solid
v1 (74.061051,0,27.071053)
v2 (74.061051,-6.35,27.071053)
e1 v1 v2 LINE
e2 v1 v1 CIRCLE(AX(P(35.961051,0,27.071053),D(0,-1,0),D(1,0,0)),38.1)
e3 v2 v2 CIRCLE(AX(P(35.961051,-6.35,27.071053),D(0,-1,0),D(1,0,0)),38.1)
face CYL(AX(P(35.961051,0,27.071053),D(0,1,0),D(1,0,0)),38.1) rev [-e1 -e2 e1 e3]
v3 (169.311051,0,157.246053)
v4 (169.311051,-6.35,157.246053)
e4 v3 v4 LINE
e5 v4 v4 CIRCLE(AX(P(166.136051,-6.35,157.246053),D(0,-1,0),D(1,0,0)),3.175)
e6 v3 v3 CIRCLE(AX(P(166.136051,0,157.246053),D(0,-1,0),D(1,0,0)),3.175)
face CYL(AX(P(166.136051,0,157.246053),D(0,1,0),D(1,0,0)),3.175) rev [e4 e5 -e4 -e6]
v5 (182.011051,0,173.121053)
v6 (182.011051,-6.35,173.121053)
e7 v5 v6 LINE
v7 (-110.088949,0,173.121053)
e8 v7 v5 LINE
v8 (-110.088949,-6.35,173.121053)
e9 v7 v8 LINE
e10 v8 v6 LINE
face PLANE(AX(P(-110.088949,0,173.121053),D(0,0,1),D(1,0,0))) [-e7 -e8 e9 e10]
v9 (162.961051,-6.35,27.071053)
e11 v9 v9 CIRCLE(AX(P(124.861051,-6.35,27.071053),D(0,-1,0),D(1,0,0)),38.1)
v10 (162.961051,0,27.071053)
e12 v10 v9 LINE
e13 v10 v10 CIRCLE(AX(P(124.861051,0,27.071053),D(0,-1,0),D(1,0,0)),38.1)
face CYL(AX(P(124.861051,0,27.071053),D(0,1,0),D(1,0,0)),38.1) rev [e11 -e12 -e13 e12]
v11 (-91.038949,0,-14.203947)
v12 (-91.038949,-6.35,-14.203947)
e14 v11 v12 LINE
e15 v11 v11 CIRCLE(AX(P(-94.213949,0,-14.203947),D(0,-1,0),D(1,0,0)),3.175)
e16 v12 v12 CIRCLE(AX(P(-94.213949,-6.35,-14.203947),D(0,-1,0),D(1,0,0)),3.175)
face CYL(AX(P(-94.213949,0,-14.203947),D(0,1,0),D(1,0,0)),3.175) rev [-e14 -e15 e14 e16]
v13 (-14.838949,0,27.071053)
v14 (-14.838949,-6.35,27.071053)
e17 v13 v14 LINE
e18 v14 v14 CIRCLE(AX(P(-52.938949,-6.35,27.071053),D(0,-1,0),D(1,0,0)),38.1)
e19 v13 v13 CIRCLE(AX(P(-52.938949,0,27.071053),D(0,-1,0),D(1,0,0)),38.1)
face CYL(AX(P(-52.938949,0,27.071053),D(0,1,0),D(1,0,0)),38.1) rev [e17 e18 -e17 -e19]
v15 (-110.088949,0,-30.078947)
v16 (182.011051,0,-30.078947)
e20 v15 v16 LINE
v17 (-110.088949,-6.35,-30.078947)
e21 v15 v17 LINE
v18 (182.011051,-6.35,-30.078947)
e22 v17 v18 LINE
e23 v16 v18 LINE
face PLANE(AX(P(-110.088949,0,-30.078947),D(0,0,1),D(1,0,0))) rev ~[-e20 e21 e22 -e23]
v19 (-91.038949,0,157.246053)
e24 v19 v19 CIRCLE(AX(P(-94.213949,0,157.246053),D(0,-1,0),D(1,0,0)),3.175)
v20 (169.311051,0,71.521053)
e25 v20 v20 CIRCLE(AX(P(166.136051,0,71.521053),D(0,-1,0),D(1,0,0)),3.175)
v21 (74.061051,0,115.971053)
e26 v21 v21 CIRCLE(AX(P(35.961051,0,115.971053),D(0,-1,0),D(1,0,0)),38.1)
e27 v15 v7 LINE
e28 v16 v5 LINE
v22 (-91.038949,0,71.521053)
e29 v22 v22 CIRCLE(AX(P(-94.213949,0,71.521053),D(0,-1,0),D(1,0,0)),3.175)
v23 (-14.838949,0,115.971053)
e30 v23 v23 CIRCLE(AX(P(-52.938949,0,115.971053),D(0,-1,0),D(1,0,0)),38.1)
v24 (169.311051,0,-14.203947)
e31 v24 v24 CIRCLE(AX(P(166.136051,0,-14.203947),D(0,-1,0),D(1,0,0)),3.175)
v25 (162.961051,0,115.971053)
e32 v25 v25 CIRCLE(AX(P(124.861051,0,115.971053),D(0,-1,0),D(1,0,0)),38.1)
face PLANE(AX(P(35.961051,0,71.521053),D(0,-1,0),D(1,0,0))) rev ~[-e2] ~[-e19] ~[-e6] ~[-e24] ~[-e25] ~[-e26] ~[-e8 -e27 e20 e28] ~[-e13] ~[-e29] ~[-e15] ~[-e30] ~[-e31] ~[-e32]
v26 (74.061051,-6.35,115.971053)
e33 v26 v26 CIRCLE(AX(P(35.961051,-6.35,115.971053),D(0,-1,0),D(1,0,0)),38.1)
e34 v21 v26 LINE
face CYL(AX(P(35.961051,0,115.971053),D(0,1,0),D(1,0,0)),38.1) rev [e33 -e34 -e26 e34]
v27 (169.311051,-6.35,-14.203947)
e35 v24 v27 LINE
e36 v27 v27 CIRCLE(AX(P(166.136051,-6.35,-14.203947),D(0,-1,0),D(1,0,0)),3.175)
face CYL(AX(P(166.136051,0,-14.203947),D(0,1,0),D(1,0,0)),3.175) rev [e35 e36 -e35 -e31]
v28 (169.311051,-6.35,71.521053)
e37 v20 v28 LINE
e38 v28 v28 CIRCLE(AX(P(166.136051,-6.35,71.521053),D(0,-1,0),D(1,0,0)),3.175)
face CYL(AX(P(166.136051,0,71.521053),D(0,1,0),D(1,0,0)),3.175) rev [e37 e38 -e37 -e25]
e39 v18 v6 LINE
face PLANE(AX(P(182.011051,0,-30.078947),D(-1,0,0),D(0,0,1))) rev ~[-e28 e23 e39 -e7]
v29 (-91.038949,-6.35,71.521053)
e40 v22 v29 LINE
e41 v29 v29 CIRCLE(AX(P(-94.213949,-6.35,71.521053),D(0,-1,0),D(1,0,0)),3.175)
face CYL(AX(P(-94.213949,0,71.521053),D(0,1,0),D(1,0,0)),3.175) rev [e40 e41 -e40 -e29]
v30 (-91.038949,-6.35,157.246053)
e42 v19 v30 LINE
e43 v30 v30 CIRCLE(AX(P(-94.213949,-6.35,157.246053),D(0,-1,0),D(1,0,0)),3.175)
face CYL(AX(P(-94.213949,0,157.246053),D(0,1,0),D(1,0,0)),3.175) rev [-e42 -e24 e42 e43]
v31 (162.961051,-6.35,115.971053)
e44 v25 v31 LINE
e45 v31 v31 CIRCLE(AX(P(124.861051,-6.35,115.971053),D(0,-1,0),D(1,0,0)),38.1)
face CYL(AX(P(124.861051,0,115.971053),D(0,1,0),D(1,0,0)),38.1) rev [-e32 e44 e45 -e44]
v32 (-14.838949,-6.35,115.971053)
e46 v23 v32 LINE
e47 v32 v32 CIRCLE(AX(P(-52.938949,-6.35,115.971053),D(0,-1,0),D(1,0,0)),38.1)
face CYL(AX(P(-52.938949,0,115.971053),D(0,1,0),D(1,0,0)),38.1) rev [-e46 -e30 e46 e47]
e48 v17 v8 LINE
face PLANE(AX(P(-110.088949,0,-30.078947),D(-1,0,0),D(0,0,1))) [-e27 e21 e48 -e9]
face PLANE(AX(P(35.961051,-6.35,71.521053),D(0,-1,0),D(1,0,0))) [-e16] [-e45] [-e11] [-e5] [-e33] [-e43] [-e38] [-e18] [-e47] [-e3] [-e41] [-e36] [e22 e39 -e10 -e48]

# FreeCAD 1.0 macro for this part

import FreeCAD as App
import Part
import Sketcher

V = App.Vector
Q = App.Units.Quantity

doc = App.newDocument("Part")
params = doc.addObject("Spreadsheet::Sheet", "Params")
for row, (alias, value) in enumerate([
    ("sketch1_diameter", "3 in"),
    ("sketch1_diameter2", "0.25 in"),
    ("sketch1_height", "8 in"),
    ("sketch1_width", "11.5 in"),
    ("pad1_length", "0.25 in"),
], start=1):
    params.set(f"A{row}", alias)
    params.set(f"B{row}", "=" + value)
    params.setAlias(f"B{row}", alias)

body = doc.addObject("PartDesign::Body", "Body")

# Sketch on XZ plane
sketch1 = doc.addObject("Sketcher::SketchObject", "Sketch")
body.addObject(sketch1)
sketch1.AttachmentSupport = (doc.XZ_Plane, [""])
sketch1.MapMode = "FlatFace"
sketch1.addGeometry([
    Part.LineSegment(V(-110.1, 173.1, 0), V(-110.1, -30.1, 0)),  # 0
    Part.LineSegment(V(-110.1, -30.1, 0), V(182, -30.1, 0)),  # 1
    Part.LineSegment(V(182, -30.1, 0), V(182, 173.1, 0)),  # 2
    Part.LineSegment(V(182, 173.1, 0), V(-110.1, 173.1, 0)),  # 3
    Part.Circle(V(-94.2, -14.2, 0), V(0, 0, 1), 3.2),  # 4
    Part.Circle(V(-52.9, 27.1, 0), V(0, 0, 1), 38.1),  # 5
    Part.Circle(V(166.1, -14.2, 0), V(0, 0, 1), 3.2),  # 6
    Part.Circle(V(36, 27.1, 0), V(0, 0, 1), 38.1),  # 7
    Part.Circle(V(124.9, 27.1, 0), V(0, 0, 1), 38.1),  # 8
    Part.Circle(V(-94.2, 71.5, 0), V(0, 0, 1), 3.2),  # 9
    Part.Circle(V(-52.9, 116, 0), V(0, 0, 1), 38.1),  # 10
    Part.Circle(V(-94.2, 157.2, 0), V(0, 0, 1), 3.2),  # 11
    Part.Circle(V(166.1, 71.5, 0), V(0, 0, 1), 3.2),  # 12
    Part.Circle(V(36, 116, 0), V(0, 0, 1), 38.1),  # 13
    Part.Circle(V(124.9, 116, 0), V(0, 0, 1), 38.1),  # 14
    Part.Circle(V(166.1, 157.2, 0), V(0, 0, 1), 3.2),  # 15
], False)
sketch1.addConstraint([
    Sketcher.Constraint("Coincident", 0, 2, 1, 1),
    Sketcher.Constraint("Coincident", 1, 2, 2, 1),
    Sketcher.Constraint("Coincident", 2, 2, 3, 1),
    Sketcher.Constraint("Coincident", 3, 2, 0, 1),
    Sketcher.Constraint("Vertical", 0),
    Sketcher.Constraint("Horizontal", 1),
    Sketcher.Constraint("Vertical", 2),
    Sketcher.Constraint("Horizontal", 3),
    Sketcher.Constraint("Equal", 4, 6),
    Sketcher.Constraint("Equal", 5, 7),
    Sketcher.Constraint("Equal", 7, 8),
    Sketcher.Constraint("Equal", 6, 9),
    Sketcher.Constraint("Equal", 8, 10),
    Sketcher.Constraint("Equal", 9, 11),
    Sketcher.Constraint("Equal", 11, 12),
    Sketcher.Constraint("Equal", 10, 13),
    Sketcher.Constraint("Equal", 13, 14),
    Sketcher.Constraint("Equal", 12, 15),
    Sketcher.Constraint("Horizontal", 4, 3, 6, 3),
    Sketcher.Constraint("Horizontal", 5, 3, 7, 3),
    Sketcher.Constraint("Horizontal", 7, 3, 8, 3),
    Sketcher.Constraint("Horizontal", 9, 3, 12, 3),
    Sketcher.Constraint("Horizontal", 10, 3, 13, 3),
    Sketcher.Constraint("Horizontal", 13, 3, 14, 3),
    Sketcher.Constraint("Horizontal", 11, 3, 15, 3),
    Sketcher.Constraint("Vertical", 4, 3, 9, 3),
    Sketcher.Constraint("Vertical", 5, 3, 10, 3),
    Sketcher.Constraint("Vertical", 9, 3, 11, 3),
    Sketcher.Constraint("Vertical", 6, 3, 12, 3),
    Sketcher.Constraint("Vertical", 7, 3, 13, 3),
    Sketcher.Constraint("Vertical", 8, 3, 14, 3),
    Sketcher.Constraint("Vertical", 12, 3, 15, 3),
    Sketcher.Constraint("Diameter", 5, Q("3 in")),
    Sketcher.Constraint("Diameter", 4, Q("0.25 in")),
    Sketcher.Constraint("DistanceY", 0, 2, 0, 1, Q("8 in")),
    Sketcher.Constraint("DistanceX", 1, 1, 1, 2, Q("11.5 in")),
    Sketcher.Constraint("DistanceX", 5, 3, 8, 3, Q("7 in")),
    Sketcher.Constraint("DistanceY", 0, 2, 9, 3, Q("4 in")),
    Sketcher.Constraint("DistanceX", 5, 3, 7, 3, Q("3.5 in")),
    Sketcher.Constraint("DistanceY", 5, 3, 10, 3, Q("3.5 in")),
    Sketcher.Constraint("DistanceX", 4, 3, 6, 3, Q("10.25 in")),
    Sketcher.Constraint("DistanceY", 5, 3, 9, 3, Q("1.75 in")),
    Sketcher.Constraint("DistanceY", 4, 3, 11, 3, Q("6.75 in")),
    Sketcher.Constraint("DistanceX", 0, 2, 5, 3, Q("2.25 in")),
    Sketcher.Constraint("DistanceX", 4, 3, 5, 3, Q("1.625 in")),
    Sketcher.Constraint("DistanceY", 4, 3, 5, 3, Q("1.625 in")),
    Sketcher.Constraint("DistanceX", 4, 3, -1, 1, 94.213949),
    Sketcher.Constraint("DistanceY", 4, 3, -1, 1, 14.203947),
])
sketch1.setExpression("Constraints[32]", "Params.sketch1_diameter")
sketch1.setExpression("Constraints[33]", "Params.sketch1_diameter2")
sketch1.setExpression("Constraints[34]", "Params.sketch1_height")
sketch1.setExpression("Constraints[35]", "Params.sketch1_width")
pad1 = doc.addObject("PartDesign::Pad", "Pad")
body.addObject(pad1)
pad1.Profile = sketch1
pad1.setExpression("Length", "Params.pad1_length")

doc.recompute()
